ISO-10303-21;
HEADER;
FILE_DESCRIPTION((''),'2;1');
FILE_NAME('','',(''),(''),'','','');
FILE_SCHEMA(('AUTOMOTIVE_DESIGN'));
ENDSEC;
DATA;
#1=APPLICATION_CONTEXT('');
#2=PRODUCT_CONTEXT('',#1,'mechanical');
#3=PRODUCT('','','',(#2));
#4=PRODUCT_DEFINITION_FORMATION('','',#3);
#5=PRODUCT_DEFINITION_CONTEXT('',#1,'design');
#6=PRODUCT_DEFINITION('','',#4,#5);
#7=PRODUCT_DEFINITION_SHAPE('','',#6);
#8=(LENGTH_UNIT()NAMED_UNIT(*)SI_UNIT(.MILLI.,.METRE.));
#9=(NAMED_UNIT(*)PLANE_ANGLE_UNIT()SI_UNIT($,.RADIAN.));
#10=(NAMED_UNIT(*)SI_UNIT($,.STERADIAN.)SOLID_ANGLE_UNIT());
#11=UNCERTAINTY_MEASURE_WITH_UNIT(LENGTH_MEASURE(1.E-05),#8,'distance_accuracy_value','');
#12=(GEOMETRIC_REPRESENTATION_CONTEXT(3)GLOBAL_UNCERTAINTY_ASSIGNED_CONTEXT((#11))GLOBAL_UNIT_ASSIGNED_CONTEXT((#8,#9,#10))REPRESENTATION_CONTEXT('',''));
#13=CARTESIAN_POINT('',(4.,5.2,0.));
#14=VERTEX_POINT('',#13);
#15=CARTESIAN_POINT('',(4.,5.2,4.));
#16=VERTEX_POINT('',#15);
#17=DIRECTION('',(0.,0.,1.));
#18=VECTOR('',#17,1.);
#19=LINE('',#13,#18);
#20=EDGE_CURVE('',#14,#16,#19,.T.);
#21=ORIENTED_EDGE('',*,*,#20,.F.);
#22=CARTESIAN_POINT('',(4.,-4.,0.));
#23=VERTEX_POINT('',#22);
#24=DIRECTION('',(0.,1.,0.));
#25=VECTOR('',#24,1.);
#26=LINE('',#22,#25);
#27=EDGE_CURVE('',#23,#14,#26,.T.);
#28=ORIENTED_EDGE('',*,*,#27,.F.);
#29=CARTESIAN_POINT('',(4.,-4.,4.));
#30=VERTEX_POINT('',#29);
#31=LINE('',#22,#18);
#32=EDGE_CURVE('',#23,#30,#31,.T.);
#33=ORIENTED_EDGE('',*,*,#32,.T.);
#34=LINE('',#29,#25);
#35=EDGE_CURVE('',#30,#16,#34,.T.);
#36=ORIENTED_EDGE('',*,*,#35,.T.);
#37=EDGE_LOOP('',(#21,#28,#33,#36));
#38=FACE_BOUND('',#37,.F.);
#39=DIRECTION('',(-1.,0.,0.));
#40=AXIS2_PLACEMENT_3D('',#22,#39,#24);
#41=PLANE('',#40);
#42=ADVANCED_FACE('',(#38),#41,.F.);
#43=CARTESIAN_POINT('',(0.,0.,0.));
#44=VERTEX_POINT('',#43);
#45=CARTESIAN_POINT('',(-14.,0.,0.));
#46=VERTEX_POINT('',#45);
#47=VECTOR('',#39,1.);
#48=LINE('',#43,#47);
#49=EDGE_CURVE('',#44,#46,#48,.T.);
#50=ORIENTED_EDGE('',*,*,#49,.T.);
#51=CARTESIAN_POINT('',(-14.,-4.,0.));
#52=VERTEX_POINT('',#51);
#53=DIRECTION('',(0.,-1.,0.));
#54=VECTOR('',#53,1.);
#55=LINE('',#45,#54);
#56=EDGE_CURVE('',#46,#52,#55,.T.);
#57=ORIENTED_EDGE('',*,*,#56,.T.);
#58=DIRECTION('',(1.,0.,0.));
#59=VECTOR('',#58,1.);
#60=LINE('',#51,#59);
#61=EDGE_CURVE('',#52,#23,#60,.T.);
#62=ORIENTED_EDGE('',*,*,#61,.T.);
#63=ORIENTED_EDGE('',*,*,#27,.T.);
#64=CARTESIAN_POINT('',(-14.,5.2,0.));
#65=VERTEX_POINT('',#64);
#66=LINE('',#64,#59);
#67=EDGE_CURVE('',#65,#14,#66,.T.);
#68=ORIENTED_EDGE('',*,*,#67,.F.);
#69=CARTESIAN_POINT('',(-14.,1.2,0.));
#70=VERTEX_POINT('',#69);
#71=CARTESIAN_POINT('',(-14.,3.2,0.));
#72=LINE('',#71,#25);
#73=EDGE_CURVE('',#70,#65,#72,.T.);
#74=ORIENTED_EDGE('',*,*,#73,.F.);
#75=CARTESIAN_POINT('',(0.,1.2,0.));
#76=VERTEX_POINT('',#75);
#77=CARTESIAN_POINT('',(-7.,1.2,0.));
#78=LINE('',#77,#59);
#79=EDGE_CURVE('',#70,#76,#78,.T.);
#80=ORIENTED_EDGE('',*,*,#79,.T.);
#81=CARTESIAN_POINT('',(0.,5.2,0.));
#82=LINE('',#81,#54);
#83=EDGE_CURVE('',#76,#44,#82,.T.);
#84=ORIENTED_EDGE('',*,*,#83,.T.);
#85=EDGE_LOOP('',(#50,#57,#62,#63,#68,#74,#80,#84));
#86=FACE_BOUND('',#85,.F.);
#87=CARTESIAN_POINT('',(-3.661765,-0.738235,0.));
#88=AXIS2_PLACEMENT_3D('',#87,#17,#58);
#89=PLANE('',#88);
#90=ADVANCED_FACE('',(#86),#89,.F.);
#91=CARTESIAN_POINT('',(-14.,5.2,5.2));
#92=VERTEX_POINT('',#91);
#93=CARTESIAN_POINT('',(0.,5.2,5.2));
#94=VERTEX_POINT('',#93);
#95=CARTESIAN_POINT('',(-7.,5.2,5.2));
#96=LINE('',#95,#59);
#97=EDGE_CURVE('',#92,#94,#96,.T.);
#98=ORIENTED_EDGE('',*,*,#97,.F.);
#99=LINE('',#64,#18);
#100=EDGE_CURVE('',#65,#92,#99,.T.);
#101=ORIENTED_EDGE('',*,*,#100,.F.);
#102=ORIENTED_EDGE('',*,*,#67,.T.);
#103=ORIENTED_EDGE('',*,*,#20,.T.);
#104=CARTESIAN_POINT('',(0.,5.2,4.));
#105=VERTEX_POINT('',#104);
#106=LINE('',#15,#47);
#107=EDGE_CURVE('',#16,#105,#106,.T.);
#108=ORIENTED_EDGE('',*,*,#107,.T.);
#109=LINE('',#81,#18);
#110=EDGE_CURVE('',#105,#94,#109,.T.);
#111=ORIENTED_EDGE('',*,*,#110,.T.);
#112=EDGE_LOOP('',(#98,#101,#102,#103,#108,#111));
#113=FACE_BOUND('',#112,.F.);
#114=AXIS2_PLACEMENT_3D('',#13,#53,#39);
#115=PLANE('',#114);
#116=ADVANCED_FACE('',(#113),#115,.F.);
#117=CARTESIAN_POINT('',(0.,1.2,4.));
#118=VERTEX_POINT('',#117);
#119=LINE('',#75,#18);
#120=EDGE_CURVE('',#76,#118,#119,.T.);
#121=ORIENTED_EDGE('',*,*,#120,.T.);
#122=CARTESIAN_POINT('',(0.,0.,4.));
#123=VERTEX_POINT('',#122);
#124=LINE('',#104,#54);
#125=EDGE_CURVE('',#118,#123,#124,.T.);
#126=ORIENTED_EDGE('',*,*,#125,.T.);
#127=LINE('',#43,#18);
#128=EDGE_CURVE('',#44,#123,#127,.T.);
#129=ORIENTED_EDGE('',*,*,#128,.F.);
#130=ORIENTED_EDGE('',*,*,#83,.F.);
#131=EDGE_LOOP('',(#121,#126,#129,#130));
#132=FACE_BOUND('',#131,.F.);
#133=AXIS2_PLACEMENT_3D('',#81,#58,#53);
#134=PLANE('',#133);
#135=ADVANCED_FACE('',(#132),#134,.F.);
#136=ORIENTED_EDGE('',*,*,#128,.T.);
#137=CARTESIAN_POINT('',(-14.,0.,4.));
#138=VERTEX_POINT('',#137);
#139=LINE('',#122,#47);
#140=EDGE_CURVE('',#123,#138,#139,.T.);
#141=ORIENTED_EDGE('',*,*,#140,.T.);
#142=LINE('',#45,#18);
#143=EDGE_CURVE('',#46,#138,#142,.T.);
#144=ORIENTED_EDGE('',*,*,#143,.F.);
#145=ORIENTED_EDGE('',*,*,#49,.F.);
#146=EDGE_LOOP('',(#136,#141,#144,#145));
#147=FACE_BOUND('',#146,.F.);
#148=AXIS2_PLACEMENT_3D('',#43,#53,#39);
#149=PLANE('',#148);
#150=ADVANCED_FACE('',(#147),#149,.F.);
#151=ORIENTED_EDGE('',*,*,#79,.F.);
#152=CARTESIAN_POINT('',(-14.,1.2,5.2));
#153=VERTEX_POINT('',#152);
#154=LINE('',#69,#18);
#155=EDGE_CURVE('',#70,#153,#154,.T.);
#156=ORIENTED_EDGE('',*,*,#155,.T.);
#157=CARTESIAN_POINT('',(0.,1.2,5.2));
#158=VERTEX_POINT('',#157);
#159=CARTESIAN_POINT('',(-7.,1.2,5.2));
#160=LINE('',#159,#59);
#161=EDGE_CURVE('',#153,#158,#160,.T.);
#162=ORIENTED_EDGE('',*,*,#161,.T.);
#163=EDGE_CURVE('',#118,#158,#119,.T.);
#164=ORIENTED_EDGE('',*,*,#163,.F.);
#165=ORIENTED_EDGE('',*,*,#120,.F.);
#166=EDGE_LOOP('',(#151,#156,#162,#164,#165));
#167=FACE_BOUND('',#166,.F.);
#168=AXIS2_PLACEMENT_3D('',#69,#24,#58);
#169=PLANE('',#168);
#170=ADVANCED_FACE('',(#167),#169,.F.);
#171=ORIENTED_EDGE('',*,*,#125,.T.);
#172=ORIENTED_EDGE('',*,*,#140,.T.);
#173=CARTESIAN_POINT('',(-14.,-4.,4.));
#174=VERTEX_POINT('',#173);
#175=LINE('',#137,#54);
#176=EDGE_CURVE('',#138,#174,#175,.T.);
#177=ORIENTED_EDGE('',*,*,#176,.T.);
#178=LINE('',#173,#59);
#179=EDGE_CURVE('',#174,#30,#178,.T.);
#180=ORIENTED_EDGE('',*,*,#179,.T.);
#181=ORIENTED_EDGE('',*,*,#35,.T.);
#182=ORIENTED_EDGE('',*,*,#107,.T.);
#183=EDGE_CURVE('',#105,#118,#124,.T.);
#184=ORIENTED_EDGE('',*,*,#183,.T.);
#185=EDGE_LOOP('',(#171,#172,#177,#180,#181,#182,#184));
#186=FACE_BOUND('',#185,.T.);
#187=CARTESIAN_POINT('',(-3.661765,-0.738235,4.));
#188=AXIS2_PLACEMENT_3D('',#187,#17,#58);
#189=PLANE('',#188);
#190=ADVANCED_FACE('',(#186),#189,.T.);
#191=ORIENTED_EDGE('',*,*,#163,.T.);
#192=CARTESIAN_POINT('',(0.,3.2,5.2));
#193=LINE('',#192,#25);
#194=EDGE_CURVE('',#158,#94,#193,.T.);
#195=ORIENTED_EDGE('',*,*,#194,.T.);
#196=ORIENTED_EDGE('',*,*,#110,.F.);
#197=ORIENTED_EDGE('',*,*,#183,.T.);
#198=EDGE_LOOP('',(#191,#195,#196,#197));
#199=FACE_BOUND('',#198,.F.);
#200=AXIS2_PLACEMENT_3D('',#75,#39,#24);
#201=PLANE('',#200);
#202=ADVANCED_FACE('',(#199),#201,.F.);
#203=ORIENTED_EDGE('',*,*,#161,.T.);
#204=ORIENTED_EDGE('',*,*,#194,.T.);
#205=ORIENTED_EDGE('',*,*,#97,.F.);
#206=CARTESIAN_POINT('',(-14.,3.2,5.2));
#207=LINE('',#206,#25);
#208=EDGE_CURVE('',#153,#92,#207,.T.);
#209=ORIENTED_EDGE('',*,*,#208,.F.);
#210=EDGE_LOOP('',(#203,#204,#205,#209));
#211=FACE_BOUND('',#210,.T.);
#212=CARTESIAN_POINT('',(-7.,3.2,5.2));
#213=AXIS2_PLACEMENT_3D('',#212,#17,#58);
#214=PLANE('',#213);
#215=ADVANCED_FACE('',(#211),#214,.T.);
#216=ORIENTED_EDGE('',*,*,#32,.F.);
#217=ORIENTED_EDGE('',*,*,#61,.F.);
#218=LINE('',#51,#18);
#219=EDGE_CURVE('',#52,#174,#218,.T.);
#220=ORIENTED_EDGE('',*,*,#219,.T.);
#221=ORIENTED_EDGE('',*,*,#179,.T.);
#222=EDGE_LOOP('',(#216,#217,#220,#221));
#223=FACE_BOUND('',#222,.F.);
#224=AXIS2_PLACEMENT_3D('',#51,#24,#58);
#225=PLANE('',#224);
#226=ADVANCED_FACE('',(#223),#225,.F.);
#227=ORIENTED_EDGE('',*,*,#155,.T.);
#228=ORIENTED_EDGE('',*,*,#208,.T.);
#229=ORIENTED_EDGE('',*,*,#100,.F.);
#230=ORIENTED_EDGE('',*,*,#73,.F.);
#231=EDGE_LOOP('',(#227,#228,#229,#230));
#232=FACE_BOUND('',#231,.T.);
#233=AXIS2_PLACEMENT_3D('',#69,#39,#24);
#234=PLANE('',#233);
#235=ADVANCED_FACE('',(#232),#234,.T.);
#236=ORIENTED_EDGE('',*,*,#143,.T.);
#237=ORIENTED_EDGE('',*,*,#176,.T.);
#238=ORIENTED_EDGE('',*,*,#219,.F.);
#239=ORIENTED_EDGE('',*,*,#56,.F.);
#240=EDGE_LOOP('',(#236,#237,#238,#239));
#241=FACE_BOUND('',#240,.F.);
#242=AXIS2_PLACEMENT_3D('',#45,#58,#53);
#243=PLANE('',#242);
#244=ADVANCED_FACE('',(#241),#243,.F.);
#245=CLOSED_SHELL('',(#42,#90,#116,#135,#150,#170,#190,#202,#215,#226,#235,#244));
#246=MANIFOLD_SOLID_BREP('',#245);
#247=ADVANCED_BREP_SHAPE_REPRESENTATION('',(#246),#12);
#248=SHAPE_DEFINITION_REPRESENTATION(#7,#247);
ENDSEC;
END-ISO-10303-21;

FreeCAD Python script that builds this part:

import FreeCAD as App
import Part
import Sketcher
from FreeCAD import Vector
Q = App.Units.Quantity

doc = App.newDocument("Part")
body = doc.addObject("PartDesign::Body", "Body")

sketch1 = body.newObject("Sketcher::SketchObject", "Sketch")
sketch1.AttachmentSupport = (doc.getObject("XY_Plane"), [""])
sketch1.MapMode = "FlatFace"
sketch1.addGeometry([
    Part.LineSegment(Vector(-14, 5.2, 0), Vector(-14, 1.2, 0)),
    Part.LineSegment(Vector(-14, 1.2, 0), Vector(0, 1.2, 0)),
    Part.LineSegment(Vector(0, 1.2, 0), Vector(0, 5.2, 0)),
    Part.LineSegment(Vector(0, 5.2, 0), Vector(-14, 5.2, 0)),
], False)
sketch1.addConstraint([
    Sketcher.Constraint("Coincident", 0, 2, 1, 1),
    Sketcher.Constraint("Coincident", 1, 2, 2, 1),
    Sketcher.Constraint("Coincident", 2, 2, 3, 1),
    Sketcher.Constraint("Coincident", 3, 2, 0, 1),
    Sketcher.Constraint("Vertical", 0),
    Sketcher.Constraint("Horizontal", 1),
    Sketcher.Constraint("Vertical", 2),
    Sketcher.Constraint("Horizontal", 3),
    Sketcher.Constraint("PointOnObject", 1, 2, -2),
    Sketcher.Constraint("DistanceX", 1, 1, 1, 2, Q("14 mm")),
    Sketcher.Constraint("DistanceY", 0, 2, 0, 1, Q("4 mm")),
    Sketcher.Constraint("DistanceY", -1, 1, 0, 2, Q("1.2 mm")),
])
pad1 = body.newObject("PartDesign::Pad", "Pad")
pad1.Profile = sketch1
pad1.Length = 5.2

sketch2 = body.newObject("Sketcher::SketchObject", "Sketch001")
sketch2.AttachmentSupport = (doc.getObject("XY_Plane"), [""])
sketch2.MapMode = "FlatFace"
sketch2.addGeometry([
    Part.LineSegment(Vector(0, 0, 0), Vector(-14, 0, 0)),
    Part.LineSegment(Vector(-14, 0, 0), Vector(-14, -4, 0)),
    Part.LineSegment(Vector(-14, -4, 0), Vector(4, -4, 0)),
    Part.LineSegment(Vector(4, -4, 0), Vector(4, 5.2, 0)),
    Part.LineSegment(Vector(4, 5.2, 0), Vector(0, 5.2, 0)),
    Part.LineSegment(Vector(0, 5.2, 0), Vector(0, 0, 0)),
], False)
sketch2.addConstraint([
    Sketcher.Constraint("Coincident", 0, 2, 1, 1),
    Sketcher.Constraint("Coincident", 1, 2, 2, 1),
    Sketcher.Constraint("Coincident", 2, 2, 3, 1),
    Sketcher.Constraint("Coincident", 3, 2, 4, 1),
    Sketcher.Constraint("Coincident", 4, 2, 5, 1),
    Sketcher.Constraint("Coincident", 5, 2, 0, 1),
    Sketcher.Constraint("Horizontal", 0),
    Sketcher.Constraint("Vertical", 1),
    Sketcher.Constraint("Horizontal", 2),
    Sketcher.Constraint("Vertical", 3),
    Sketcher.Constraint("Horizontal", 4),
    Sketcher.Constraint("Vertical", 5),
    Sketcher.Constraint("Coincident", 5, 2, -1, 1),
    Sketcher.Constraint("Equal", 4, 1),
    Sketcher.Constraint("DistanceX", 0, 2, 0, 1, Q("14 mm")),
    Sketcher.Constraint("DistanceX", 2, 1, 2, 2, Q("18 mm")),
    Sketcher.Constraint("DistanceY", 3, 1, 3, 2, Q("9.2 mm")),
])
pad2 = body.newObject("PartDesign::Pad", "Pad001")
pad2.Profile = sketch2
pad2.Length = 4

doc.recompute()
